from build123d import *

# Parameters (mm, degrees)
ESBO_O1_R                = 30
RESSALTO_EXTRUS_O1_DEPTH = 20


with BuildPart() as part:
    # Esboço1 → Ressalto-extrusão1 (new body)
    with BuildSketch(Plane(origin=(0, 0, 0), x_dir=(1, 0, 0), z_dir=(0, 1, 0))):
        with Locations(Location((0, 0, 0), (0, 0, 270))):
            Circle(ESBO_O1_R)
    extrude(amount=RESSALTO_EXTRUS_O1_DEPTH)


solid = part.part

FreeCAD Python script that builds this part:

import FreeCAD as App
import Part
import Sketcher

V = App.Vector
Q = App.Units.Quantity

doc = App.newDocument("Part")
body = doc.addObject("PartDesign::Body", "Body")

# Sketch on XZ plane
sketch1 = body.newObject("Sketcher::SketchObject", "Sketch")
sketch1.AttachmentSupport = (doc.getObject("XZ_Plane"), [""])
sketch1.MapMode = "FlatFace"
sketch1.addGeometry(Part.Circle(V(0, 0, 0), V(0, 0, 1), 30), False)
sketch1.addConstraint([
    Sketcher.Constraint("Coincident", 0, 3, -1, 1),
    Sketcher.Constraint("Diameter", 0, Q("60 mm")),
])
pad1 = body.newObject("PartDesign::Pad", "Pad")
pad1.Profile = sketch1
pad1.Length = 20
pad1.Reversed = True

doc.recompute()
